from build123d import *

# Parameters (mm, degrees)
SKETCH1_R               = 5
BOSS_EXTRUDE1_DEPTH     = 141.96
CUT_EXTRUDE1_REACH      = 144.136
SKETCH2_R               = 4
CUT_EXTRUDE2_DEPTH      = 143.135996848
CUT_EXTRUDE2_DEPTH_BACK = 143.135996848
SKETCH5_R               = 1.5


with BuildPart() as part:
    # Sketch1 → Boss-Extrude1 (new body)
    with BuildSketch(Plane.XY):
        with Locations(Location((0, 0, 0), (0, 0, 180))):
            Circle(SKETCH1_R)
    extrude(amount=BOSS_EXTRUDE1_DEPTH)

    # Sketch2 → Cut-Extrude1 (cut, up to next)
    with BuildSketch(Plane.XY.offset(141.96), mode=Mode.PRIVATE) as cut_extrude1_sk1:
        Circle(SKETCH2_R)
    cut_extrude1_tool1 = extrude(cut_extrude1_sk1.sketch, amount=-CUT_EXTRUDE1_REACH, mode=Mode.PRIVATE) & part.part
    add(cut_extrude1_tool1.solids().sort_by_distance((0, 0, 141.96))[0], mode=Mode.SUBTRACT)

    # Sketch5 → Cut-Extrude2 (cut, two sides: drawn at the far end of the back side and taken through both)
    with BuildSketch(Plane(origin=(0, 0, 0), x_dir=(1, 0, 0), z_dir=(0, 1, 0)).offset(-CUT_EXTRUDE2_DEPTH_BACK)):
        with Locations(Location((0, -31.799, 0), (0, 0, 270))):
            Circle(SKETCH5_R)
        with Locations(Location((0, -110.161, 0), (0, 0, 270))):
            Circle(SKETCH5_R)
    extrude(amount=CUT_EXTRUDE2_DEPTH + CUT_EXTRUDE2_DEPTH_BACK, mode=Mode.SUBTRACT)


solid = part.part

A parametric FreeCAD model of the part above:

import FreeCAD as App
import Part
import Sketcher

doc = App.newDocument("Part")
params = doc.addObject("Spreadsheet::Sheet", "Params")
for row, (alias, value) in enumerate([
    ("sketch1_diameter", "10 mm"),
    ("pad1_length", "141.96 mm"),
    ("sketch2_diameter", "8 mm"),
    ("sketch3_diameter", "3 mm"),
], start=1):
    params.set(f"A{row}", alias)
    params.set(f"B{row}", "=" + value)
    params.setAlias(f"B{row}", alias)

body = doc.addObject("PartDesign::Body", "Body")

# Sketch on XY plane
sketch1 = body.newObject("Sketcher::SketchObject", "Sketch")
sketch1.AttachmentSupport = (doc.getObject("XY_Plane"), [""])
sketch1.MapMode = "FlatFace"
sketch1.addGeometry(Part.Circle(App.Vector(0, 0, 0), App.Vector(0, 0, 1), 5), False)
sketch1.addConstraint([
    Sketcher.Constraint("Coincident", 0, 3, -1, 1),
    Sketcher.Constraint("Diameter", 0, 10.0),
])
sketch1.setExpression("Constraints[1]", "Params.sketch1_diameter")
pad1 = body.newObject("PartDesign::Pad", "Pad")
pad1.Profile = sketch1
pad1.setExpression("Length", "Params.pad1_length")

# Sketch on XY plane
sketch2 = body.newObject("Sketcher::SketchObject", "Sketch001")
sketch2.AttachmentSupport = (doc.getObject("XY_Plane"), [""])
sketch2.MapMode = "FlatFace"
sketch2.AttachmentOffset = App.Placement(App.Vector(0, 0, 141.96), App.Rotation())
sketch2.addGeometry(Part.Circle(App.Vector(0, 0, 0), App.Vector(0, 0, 1), 4), False)
sketch2.addConstraint([
    Sketcher.Constraint("Coincident", 0, 3, -1, 1),
    Sketcher.Constraint("Diameter", 0, 8.0),
])
sketch2.setExpression("Constraints[1]", "Params.sketch2_diameter")
pocket1 = body.newObject("PartDesign::Pocket", "Pocket")
pocket1.Profile = sketch2
pocket1.Type = "UpToFirst"

# Sketch on XZ plane
sketch3 = body.newObject("Sketcher::SketchObject", "Sketch002")
sketch3.AttachmentSupport = (doc.getObject("XZ_Plane"), [""])
sketch3.MapMode = "FlatFace"
sketch3.addGeometry([
    Part.Circle(App.Vector(0, 31.799, 0), App.Vector(0, 0, 1), 1.5),
    Part.Circle(App.Vector(0, 110.161, 0), App.Vector(0, 0, 1), 1.5),
], False)
sketch3.addConstraint([
    Sketcher.Constraint("Equal", 0, 1),
    Sketcher.Constraint("PointOnObject", 0, 3, -2),
    Sketcher.Constraint("PointOnObject", 1, 3, -2),
    Sketcher.Constraint("Diameter", 0, 3.0),
    Sketcher.Constraint("DistanceY", -1, 1, 0, 3, 31.799),
    Sketcher.Constraint("DistanceY", -1, 1, 1, 3, 110.161),
])
sketch3.setExpression("Constraints[3]", "Params.sketch3_diameter")
pocket2 = body.newObject("PartDesign::Pocket", "Pocket001")
pocket2.Profile = sketch3
pocket2.Type = "ThroughAll"
pocket2.Midplane = True

doc.recompute()
